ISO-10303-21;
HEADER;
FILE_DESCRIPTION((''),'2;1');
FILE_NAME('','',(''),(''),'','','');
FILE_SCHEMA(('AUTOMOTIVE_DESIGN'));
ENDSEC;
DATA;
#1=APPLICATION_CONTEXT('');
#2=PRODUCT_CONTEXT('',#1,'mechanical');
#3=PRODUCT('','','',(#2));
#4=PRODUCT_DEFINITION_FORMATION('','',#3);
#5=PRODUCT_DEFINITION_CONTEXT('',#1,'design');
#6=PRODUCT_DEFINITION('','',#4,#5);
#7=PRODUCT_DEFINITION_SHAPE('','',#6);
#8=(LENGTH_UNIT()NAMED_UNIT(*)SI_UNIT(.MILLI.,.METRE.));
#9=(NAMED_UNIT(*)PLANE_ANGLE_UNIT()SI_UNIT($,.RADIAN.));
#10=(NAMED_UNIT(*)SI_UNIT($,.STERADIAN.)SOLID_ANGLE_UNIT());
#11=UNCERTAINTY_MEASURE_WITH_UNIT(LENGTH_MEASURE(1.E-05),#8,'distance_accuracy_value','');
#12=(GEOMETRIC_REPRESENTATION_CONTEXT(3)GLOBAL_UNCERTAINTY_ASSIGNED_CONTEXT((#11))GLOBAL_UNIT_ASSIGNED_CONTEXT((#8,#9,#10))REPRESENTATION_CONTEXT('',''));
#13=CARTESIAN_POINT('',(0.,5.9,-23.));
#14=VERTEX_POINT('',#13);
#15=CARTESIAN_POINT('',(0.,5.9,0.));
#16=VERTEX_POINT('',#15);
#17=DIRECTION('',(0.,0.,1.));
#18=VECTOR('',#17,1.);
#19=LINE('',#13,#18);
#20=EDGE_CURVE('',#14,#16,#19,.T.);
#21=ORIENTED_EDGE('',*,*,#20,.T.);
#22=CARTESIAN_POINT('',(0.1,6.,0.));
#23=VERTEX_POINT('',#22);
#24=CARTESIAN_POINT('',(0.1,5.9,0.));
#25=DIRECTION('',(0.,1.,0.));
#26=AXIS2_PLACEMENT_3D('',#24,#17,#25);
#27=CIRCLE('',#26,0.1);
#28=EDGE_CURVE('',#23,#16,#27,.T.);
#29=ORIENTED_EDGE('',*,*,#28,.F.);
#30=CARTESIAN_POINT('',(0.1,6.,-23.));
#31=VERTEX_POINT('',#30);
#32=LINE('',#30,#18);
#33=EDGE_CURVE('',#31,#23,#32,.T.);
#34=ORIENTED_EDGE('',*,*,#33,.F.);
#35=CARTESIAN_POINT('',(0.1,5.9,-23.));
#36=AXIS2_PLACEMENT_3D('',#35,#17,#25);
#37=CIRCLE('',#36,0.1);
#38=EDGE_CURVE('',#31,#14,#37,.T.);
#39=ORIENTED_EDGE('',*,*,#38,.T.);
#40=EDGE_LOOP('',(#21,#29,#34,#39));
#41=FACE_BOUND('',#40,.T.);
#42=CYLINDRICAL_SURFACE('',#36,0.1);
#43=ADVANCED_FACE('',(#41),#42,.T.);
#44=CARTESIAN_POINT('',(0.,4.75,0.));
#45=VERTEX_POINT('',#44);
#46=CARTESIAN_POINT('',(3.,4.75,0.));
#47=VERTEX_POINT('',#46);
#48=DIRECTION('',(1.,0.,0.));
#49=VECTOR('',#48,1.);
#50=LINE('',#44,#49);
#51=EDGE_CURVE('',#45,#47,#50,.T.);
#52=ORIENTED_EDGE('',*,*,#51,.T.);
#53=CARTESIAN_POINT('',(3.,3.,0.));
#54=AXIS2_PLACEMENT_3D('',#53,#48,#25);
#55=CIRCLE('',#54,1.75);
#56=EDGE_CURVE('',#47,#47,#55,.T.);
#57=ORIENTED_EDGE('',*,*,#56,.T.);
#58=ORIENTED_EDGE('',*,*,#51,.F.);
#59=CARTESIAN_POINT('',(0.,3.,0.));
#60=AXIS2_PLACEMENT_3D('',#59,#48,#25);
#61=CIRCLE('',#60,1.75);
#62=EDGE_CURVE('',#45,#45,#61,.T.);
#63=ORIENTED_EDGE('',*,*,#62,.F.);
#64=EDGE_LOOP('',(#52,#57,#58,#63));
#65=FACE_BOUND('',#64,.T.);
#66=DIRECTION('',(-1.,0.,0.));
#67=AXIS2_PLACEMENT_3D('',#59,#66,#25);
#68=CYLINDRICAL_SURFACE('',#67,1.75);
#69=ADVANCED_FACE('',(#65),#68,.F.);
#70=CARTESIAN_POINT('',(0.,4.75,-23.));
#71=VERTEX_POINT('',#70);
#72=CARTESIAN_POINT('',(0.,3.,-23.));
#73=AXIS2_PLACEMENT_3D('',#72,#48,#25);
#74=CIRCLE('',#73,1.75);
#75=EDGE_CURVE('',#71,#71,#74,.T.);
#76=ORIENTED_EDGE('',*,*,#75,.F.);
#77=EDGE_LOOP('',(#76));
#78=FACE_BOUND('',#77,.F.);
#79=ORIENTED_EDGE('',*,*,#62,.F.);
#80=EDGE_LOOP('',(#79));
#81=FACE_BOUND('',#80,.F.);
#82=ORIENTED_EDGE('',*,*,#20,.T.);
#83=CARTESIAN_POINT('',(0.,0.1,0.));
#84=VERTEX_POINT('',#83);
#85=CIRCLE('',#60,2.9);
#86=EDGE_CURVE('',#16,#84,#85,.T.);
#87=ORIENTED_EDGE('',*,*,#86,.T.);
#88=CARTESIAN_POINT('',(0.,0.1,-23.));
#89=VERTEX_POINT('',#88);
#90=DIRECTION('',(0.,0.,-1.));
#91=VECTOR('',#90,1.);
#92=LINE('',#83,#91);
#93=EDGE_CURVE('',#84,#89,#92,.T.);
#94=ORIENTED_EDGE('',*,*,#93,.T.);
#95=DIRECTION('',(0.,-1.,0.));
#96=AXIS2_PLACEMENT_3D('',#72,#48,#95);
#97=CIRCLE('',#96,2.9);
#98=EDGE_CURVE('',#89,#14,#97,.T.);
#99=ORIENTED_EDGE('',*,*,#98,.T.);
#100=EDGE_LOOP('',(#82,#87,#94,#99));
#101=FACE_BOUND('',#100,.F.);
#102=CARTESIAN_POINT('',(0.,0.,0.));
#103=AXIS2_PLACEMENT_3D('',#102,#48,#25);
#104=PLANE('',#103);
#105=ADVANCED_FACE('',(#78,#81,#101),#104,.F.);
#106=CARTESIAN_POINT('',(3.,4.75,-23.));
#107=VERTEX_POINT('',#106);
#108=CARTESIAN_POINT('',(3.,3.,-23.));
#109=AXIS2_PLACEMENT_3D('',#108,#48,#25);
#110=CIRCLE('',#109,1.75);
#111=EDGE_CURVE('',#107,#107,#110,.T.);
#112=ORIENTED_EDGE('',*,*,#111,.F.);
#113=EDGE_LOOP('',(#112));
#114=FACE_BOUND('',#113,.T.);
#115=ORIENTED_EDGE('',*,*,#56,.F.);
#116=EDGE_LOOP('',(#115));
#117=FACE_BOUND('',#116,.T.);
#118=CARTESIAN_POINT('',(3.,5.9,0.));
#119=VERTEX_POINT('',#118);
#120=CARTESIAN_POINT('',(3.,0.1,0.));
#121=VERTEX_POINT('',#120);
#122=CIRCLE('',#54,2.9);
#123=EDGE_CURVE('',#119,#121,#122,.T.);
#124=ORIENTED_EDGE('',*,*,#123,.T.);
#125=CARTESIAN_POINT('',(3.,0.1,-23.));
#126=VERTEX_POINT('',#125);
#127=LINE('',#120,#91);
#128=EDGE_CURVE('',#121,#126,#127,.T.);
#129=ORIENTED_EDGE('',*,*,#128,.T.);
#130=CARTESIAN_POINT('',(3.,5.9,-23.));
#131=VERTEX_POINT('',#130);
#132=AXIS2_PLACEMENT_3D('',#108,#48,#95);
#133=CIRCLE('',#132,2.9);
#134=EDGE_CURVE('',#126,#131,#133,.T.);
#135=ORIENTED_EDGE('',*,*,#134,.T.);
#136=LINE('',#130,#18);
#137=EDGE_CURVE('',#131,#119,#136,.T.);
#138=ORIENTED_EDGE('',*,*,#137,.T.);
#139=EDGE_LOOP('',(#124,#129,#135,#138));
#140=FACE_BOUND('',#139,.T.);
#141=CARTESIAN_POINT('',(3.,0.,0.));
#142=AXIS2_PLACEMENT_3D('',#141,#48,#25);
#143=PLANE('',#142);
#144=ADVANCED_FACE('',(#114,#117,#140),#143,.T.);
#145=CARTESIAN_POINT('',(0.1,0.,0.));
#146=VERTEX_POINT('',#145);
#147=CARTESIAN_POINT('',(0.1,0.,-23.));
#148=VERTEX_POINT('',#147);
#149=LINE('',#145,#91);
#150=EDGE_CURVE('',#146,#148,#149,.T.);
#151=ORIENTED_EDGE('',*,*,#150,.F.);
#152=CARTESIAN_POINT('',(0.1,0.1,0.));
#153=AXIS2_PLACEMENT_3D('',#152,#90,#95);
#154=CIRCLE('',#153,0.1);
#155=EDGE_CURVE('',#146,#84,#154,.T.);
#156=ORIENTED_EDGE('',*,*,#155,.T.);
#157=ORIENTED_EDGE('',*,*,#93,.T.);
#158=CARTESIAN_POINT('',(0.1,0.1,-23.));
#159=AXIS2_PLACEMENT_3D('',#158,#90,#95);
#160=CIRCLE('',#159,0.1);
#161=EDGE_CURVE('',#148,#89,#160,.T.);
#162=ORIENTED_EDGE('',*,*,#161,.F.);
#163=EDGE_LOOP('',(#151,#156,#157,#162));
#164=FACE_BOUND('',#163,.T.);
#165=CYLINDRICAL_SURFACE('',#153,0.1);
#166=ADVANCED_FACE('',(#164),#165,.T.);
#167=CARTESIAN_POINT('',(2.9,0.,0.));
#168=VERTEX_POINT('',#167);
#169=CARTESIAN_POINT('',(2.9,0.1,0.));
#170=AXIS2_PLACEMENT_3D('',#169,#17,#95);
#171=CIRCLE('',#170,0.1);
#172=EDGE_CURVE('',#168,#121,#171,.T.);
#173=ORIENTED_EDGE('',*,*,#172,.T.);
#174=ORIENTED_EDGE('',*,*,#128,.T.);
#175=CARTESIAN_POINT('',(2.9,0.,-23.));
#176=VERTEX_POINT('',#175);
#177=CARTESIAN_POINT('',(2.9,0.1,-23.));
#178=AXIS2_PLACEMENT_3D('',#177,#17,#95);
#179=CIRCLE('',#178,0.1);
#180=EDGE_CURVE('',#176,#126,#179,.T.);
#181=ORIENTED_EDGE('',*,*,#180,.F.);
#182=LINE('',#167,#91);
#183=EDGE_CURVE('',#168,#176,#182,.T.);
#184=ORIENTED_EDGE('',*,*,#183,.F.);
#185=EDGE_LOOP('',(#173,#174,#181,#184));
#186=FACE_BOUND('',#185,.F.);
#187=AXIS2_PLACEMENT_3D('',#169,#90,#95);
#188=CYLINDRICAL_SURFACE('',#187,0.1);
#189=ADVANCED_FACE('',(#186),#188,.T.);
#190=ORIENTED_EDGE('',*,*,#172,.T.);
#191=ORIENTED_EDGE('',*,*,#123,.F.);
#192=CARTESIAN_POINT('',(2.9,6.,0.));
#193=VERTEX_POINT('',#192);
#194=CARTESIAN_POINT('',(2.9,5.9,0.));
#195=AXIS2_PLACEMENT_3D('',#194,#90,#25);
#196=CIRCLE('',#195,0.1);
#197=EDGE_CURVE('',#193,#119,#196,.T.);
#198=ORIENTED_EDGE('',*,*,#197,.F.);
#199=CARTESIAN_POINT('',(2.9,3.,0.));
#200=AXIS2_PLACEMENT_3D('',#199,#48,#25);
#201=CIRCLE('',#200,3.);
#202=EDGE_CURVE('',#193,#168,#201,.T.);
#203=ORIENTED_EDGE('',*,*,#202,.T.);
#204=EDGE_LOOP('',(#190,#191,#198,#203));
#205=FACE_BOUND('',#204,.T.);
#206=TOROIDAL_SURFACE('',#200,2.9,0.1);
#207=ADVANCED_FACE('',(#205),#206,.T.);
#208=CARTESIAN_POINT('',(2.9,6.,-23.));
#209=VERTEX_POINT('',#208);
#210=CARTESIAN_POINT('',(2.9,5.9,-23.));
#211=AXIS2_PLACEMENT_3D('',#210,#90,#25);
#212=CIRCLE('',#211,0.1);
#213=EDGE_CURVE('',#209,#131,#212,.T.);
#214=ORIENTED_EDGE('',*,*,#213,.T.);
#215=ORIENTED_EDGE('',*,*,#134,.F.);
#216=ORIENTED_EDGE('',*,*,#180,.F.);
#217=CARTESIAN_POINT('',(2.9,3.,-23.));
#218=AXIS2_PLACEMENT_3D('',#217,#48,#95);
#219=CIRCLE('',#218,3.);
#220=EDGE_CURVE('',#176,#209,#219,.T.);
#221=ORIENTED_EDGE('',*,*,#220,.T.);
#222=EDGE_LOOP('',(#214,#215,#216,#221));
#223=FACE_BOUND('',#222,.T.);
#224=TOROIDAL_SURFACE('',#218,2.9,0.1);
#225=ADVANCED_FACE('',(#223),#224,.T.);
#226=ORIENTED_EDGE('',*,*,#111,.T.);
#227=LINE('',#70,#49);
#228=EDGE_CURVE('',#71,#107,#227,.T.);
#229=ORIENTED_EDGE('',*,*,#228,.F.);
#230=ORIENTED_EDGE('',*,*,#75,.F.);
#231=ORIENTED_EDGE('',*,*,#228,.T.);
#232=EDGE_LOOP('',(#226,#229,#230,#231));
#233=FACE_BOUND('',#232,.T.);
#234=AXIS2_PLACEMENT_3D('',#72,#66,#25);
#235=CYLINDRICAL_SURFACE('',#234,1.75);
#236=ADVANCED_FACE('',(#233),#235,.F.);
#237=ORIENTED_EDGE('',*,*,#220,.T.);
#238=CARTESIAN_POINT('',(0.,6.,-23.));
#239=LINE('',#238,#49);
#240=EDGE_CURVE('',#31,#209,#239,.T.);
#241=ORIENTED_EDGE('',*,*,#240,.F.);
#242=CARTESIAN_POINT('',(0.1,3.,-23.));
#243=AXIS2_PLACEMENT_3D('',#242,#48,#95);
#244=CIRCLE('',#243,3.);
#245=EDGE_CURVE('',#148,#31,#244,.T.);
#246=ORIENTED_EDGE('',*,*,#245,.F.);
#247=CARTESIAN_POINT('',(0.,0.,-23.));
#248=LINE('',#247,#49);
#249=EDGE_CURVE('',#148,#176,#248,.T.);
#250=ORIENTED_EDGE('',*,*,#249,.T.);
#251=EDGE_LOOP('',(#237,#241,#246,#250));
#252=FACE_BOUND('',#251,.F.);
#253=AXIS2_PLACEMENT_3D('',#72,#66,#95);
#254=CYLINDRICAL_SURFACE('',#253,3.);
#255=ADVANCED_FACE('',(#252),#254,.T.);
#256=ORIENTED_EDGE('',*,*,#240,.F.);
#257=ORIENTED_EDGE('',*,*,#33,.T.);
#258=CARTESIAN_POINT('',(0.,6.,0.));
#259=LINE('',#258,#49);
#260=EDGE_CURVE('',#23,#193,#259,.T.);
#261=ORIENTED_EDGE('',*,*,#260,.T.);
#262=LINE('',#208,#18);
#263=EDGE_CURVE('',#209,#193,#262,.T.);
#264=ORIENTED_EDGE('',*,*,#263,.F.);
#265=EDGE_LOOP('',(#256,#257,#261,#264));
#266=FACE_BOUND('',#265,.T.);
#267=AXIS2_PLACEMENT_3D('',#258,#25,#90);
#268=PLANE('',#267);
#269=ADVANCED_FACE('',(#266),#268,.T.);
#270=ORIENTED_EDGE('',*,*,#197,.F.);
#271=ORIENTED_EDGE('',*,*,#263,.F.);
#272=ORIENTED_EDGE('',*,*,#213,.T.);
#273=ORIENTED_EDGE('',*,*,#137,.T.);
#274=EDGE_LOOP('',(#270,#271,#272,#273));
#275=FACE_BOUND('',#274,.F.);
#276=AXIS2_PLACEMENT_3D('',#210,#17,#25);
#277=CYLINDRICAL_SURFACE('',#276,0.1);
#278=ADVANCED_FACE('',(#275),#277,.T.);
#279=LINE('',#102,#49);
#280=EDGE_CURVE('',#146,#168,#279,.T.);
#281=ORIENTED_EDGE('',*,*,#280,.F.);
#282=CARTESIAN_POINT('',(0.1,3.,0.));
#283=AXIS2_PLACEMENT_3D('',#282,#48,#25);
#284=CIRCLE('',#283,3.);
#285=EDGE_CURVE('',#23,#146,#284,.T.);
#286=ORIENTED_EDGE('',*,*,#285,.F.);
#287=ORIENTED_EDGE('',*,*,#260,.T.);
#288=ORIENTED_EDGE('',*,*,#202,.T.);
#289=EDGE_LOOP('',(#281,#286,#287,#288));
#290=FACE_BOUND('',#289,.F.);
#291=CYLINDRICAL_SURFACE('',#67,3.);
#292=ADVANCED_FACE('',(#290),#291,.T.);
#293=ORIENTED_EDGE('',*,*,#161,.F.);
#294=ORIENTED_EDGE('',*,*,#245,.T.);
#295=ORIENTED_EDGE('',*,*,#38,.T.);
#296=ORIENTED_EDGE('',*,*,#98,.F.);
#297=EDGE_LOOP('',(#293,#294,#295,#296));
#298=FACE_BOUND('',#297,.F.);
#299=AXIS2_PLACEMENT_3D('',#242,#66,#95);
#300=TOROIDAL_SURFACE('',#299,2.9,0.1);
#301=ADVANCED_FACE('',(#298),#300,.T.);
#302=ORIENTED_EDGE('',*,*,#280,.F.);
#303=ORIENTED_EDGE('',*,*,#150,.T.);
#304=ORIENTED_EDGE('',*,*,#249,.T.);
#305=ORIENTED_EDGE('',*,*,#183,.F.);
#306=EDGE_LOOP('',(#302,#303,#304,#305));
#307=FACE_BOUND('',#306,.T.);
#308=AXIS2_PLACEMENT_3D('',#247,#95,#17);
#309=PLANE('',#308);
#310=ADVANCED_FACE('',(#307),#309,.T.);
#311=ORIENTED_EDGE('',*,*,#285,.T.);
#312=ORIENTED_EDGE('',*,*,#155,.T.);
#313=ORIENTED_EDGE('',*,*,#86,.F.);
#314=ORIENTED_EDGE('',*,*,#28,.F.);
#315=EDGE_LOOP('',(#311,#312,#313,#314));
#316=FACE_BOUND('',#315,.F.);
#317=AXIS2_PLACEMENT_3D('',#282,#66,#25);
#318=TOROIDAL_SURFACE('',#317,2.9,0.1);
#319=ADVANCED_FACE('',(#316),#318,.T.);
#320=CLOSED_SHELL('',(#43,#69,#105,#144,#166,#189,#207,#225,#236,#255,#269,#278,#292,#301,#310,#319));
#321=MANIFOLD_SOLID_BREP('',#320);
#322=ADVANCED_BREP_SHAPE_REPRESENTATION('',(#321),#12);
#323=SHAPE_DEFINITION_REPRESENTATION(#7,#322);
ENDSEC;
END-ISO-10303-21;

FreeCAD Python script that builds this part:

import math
import FreeCAD as App
import Part
import Sketcher

V = App.Vector


def edges_at(feature, points):
    """Names of the edges that pass closest to the given points."""
    edges = feature.Shape.Edges
    near = lambda p: min(range(len(edges)), key=lambda i: edges[i].distToShape(Part.Vertex(*p))[0])
    return sorted({f"Edge{near(p) + 1}" for p in points})

doc = App.newDocument("Part")
params = doc.addObject("Spreadsheet::Sheet", "Params")
for row, (alias, value) in enumerate([
    ("sketch1_radius", "3 mm"),
    ("sketch1_diameter", "3.5 mm"),
    ("sketch1_height", "23 mm"),
    ("pad1_length", "3 mm"),
    ("fillet_radius", "0.1 mm"),
], start=1):
    params.set(f"A{row}", alias)
    params.set(f"B{row}", "=" + value)
    params.setAlias(f"B{row}", alias)

body = doc.addObject("PartDesign::Body", "Body")

# Sketch on YZ plane
sketch1 = body.newObject("Sketcher::SketchObject", "Sketch")
sketch1.AttachmentSupport = (doc.getObject("YZ_Plane"), [""])
sketch1.MapMode = "FlatFace"
sketch1.addGeometry([
    Part.LineSegment(V(6, -23, 0), V(6, 0, 0)),  # 0
    Part.ArcOfCircle(Part.Circle(V(3, 0, 0), V(0, 0, 1), 3), math.radians(0), math.radians(180)),  # 1
    Part.LineSegment(V(0, 0, 0), V(0, -23, 0)),  # 2
    Part.ArcOfCircle(Part.Circle(V(3, -23, 0), V(0, 0, 1), 3), math.radians(180), math.radians(360)),  # 3
    Part.Circle(V(3, -23, 0), V(0, 0, 1), 1.8),  # 4
    Part.Circle(V(3, 0, 0), V(0, 0, 1), 1.8),  # 5
], False)
sketch1.addConstraint([
    Sketcher.Constraint("Tangent", 0, 2, 1, 1),
    Sketcher.Constraint("Tangent", 1, 2, 2, 1),
    Sketcher.Constraint("Tangent", 2, 2, 3, 1),
    Sketcher.Constraint("Tangent", 3, 2, 0, 1),
    Sketcher.Constraint("Vertical", 0),
    Sketcher.Constraint("Vertical", 2),
    Sketcher.Constraint("Coincident", 1, 2, -1, 1),
    Sketcher.Constraint("Coincident", 4, 3, 3, 3),
    Sketcher.Constraint("Coincident", 5, 3, 1, 3),
    Sketcher.Constraint("Equal", 4, 5),
    Sketcher.Constraint("Radius", 1, 3.0),
    Sketcher.Constraint("Diameter", 4, 3.5),
    Sketcher.Constraint("DistanceY", 0, 1, 0, 2, 23.0),
])
sketch1.setExpression("Constraints[10]", "Params.sketch1_radius")
sketch1.setExpression("Constraints[11]", "Params.sketch1_diameter")
sketch1.setExpression("Constraints[12]", "Params.sketch1_height")
pad1 = body.newObject("PartDesign::Pad", "Pad")
pad1.Profile = sketch1
pad1.setExpression("Length", "Params.pad1_length")
doc.recompute()

fillet = body.newObject("PartDesign::Fillet", "Fillet")
fillet.Base = (pad1, edges_at(pad1, [
    (3, 3, 3),
    (3, 0, -11.5),
    (3, 3, -26),
    (3, 6, -11.5),
    (0, 3, 3),
    (0, 0, -11.5),
    (0, 3, -26),
    (0, 6, -11.5),
]))
fillet.setExpression("Radius", "Params.fillet_radius")

doc.recompute()
